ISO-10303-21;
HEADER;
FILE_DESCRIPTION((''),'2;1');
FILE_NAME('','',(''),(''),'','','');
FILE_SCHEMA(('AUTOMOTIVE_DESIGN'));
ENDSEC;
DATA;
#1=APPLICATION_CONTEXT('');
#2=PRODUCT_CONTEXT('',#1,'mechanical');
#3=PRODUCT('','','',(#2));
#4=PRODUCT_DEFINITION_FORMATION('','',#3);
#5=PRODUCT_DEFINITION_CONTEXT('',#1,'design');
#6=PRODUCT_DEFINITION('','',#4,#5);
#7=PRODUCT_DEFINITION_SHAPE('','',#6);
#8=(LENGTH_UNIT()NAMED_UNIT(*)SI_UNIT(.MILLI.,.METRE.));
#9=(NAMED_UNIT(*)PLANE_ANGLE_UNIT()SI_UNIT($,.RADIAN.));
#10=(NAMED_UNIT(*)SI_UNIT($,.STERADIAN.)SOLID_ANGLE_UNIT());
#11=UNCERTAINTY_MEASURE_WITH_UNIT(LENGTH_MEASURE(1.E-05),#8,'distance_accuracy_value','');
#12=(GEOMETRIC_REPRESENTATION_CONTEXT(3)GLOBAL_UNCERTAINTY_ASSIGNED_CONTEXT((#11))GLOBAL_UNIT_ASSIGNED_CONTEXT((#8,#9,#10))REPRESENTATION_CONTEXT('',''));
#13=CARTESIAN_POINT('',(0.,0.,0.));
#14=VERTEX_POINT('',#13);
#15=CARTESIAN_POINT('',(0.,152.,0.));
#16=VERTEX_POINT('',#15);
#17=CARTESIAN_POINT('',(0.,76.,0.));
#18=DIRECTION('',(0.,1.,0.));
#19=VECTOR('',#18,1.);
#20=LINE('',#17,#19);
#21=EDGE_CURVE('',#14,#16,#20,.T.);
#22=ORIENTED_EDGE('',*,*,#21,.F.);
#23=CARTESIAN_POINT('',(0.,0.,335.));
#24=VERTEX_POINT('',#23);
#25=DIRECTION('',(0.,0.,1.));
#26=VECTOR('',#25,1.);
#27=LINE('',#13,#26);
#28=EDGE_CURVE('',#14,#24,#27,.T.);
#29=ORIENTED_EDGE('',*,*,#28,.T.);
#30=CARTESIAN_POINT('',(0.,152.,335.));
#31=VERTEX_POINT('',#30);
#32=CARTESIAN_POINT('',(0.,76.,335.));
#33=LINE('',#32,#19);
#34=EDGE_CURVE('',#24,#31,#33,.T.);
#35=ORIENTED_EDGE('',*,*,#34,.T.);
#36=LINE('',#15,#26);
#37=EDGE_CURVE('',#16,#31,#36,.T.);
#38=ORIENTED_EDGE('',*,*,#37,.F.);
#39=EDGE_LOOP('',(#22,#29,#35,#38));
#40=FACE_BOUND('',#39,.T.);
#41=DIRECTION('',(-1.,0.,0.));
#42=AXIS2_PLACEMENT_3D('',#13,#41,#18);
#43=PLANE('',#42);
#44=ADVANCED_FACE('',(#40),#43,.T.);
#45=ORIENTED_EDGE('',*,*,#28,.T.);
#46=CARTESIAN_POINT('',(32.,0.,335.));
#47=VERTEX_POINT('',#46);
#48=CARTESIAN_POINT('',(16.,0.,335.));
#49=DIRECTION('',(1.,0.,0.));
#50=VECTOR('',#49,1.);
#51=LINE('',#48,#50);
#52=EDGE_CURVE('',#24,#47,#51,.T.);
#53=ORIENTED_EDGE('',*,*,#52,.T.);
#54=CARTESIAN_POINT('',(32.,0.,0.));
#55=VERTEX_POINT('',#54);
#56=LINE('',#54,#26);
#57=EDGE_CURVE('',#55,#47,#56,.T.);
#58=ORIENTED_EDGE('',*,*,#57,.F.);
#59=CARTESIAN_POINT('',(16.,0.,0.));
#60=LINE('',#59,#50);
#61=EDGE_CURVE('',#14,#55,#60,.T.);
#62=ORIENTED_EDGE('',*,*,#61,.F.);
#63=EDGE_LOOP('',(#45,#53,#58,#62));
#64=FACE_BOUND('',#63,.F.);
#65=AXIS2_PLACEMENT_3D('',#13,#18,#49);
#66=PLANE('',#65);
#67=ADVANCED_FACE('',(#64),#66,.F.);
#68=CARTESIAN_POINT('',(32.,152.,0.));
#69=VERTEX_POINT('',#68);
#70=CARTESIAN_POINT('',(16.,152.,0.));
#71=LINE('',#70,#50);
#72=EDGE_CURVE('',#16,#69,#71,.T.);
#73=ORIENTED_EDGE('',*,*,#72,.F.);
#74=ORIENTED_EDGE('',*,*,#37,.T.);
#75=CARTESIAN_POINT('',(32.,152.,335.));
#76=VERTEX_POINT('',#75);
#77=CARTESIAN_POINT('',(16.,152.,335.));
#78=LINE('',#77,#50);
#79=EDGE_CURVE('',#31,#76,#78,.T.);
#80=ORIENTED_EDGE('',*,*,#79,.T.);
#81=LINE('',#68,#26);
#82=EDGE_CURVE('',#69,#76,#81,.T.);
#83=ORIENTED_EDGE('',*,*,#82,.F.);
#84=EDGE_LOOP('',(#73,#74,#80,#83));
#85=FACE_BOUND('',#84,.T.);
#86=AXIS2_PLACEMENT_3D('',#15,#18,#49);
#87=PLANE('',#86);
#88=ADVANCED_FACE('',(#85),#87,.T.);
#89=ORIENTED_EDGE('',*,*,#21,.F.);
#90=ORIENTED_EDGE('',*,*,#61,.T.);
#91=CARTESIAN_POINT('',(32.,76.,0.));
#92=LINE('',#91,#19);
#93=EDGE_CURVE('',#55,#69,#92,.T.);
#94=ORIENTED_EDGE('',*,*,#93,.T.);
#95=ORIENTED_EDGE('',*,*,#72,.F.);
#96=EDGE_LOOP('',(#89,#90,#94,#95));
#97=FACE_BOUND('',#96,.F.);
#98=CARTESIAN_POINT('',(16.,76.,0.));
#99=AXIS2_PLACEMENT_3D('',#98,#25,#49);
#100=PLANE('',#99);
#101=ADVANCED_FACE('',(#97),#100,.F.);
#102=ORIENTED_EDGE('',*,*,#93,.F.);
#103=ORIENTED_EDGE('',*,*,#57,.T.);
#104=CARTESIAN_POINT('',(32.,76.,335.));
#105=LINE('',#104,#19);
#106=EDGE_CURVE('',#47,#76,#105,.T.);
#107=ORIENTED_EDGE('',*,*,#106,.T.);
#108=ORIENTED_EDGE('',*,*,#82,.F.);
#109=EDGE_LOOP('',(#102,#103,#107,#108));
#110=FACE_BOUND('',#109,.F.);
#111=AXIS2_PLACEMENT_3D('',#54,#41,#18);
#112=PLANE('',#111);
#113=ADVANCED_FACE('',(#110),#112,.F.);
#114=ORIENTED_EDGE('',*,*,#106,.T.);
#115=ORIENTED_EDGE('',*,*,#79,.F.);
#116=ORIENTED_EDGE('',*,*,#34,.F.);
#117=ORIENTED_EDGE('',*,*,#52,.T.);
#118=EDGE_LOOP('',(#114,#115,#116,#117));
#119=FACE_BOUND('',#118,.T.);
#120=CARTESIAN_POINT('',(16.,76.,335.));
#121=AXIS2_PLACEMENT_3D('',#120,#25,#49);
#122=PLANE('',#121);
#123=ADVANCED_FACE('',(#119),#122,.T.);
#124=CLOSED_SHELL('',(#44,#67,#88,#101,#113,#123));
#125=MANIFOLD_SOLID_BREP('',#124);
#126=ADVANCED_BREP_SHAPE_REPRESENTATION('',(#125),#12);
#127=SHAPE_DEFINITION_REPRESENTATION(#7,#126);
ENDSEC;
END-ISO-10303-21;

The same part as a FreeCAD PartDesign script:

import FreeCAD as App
import Part
import Sketcher

V = App.Vector


def add_polygon(sketch, points):
    """Adds a closed chain of lines whose ends are joined by coincident constraints."""
    first, n = sketch.GeometryCount, len(points)
    for a, b in zip(points, points[1:] + points[:1]):
        sketch.addGeometry(Part.LineSegment(App.Vector(*a, 0), App.Vector(*b, 0)), False)
    for i in range(n):
        sketch.addConstraint(Sketcher.Constraint("Coincident", first + i, 2, first + (i + 1) % n, 1))

doc = App.newDocument("Part")
body = doc.addObject("PartDesign::Body", "Body")

# Sketch on XY plane
sketch1 = doc.addObject("Sketcher::SketchObject", "Sketch")
body.addObject(sketch1)
sketch1.AttachmentSupport = (doc.XY_Plane, [""])
sketch1.MapMode = "FlatFace"
add_polygon(sketch1, [(0, 152), (0, 0), (32, 0), (32, 152)])  # lines 0-3
sketch1.addConstraint([
    Sketcher.Constraint("Vertical", 0),
    Sketcher.Constraint("Horizontal", 1),
    Sketcher.Constraint("Vertical", 2),
    Sketcher.Constraint("Horizontal", 3),
    Sketcher.Constraint("Coincident", 0, 2, -1, 1),
    Sketcher.Constraint("DistanceX", 1, 1, 1, 2, 32.0),
    Sketcher.Constraint("DistanceY", 0, 2, 0, 1, 152.0),
])
pad1 = doc.addObject("PartDesign::Pad", "Pad")
body.addObject(pad1)
pad1.Profile = sketch1
pad1.Length = 335

doc.recompute()
